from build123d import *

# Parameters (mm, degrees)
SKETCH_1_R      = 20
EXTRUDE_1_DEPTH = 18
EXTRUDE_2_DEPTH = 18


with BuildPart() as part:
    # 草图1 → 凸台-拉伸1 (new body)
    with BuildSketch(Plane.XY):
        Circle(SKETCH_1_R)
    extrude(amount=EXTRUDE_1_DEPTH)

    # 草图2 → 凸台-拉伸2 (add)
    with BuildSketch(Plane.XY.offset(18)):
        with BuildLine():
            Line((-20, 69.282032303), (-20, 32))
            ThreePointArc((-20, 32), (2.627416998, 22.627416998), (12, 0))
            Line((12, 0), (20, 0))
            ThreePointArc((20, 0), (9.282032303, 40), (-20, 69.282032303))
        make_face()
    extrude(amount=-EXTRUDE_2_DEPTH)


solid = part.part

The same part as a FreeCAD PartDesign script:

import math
import FreeCAD as App
import Part
import Sketcher
Q = App.Units.Quantity

doc = App.newDocument("Part")
body = doc.addObject("PartDesign::Body", "Body")

# Sketch on XY plane
sketch1 = doc.addObject("Sketcher::SketchObject", "Sketch")
body.addObject(sketch1)
sketch1.AttachmentSupport = (doc.XY_Plane, [""])
sketch1.MapMode = "FlatFace"
sketch1.addGeometry(Part.Circle(App.Vector(0, 0, 0), App.Vector(0, 0, 1), 20), False)
sketch1.addConstraint([
    Sketcher.Constraint("Coincident", 0, 3, -1, 1),
    Sketcher.Constraint("Diameter", 0, Q("40 mm")),
])
pad1 = doc.addObject("PartDesign::Pad", "Pad")
body.addObject(pad1)
pad1.Profile = sketch1
pad1.Length = 18

# Sketch on XY plane
sketch2 = doc.addObject("Sketcher::SketchObject", "Sketch001")
body.addObject(sketch2)
sketch2.AttachmentSupport = (doc.XY_Plane, [""])
sketch2.MapMode = "FlatFace"
sketch2.AttachmentOffset = App.Placement(App.Vector(0, 0, 18), App.Rotation())
sketch2.addGeometry([
    Part.LineSegment(App.Vector(-20, 69.282032, 0), App.Vector(-20, 32, 0)),
    Part.ArcOfCircle(Part.Circle(App.Vector(-20, 0, 0), App.Vector(0, 0, 1), 32), math.radians(0), math.radians(90)),
    Part.LineSegment(App.Vector(12, 0, 0), App.Vector(20, 0, 0)),
    Part.ArcOfCircle(Part.Circle(App.Vector(-60, 0, 0), App.Vector(0, 0, 1), 80), math.radians(0), math.radians(60)),
], False)
sketch2.addConstraint([
    Sketcher.Constraint("Coincident", 0, 2, 1, 2),
    Sketcher.Constraint("Coincident", 1, 1, 2, 1),
    Sketcher.Constraint("Coincident", 2, 2, 3, 1),
    Sketcher.Constraint("Coincident", 3, 2, 0, 1),
    Sketcher.Constraint("Vertical", 0),
    Sketcher.Constraint("Horizontal", 2),
    Sketcher.Constraint("PointOnObject", 1, 3, -1),
    Sketcher.Constraint("PointOnObject", 3, 3, -1),
    Sketcher.Constraint("PointOnObject", 1, 1, -1),
    Sketcher.Constraint("Vertical", 1, 3, 0, 2),
    Sketcher.Constraint("Radius", 1, Q("32 mm")),
    Sketcher.Constraint("Radius", 3, Q("80 mm")),
    Sketcher.Constraint("DistanceX", 2, 1, 2, 2, Q("8 mm")),
    Sketcher.Constraint("DistanceX", 1, 3, -1, 1, Q("20 mm")),
])
pad2 = doc.addObject("PartDesign::Pad", "Pad001")
body.addObject(pad2)
pad2.Profile = sketch2
pad2.Length = 18
pad2.Reversed = True

doc.recompute()
